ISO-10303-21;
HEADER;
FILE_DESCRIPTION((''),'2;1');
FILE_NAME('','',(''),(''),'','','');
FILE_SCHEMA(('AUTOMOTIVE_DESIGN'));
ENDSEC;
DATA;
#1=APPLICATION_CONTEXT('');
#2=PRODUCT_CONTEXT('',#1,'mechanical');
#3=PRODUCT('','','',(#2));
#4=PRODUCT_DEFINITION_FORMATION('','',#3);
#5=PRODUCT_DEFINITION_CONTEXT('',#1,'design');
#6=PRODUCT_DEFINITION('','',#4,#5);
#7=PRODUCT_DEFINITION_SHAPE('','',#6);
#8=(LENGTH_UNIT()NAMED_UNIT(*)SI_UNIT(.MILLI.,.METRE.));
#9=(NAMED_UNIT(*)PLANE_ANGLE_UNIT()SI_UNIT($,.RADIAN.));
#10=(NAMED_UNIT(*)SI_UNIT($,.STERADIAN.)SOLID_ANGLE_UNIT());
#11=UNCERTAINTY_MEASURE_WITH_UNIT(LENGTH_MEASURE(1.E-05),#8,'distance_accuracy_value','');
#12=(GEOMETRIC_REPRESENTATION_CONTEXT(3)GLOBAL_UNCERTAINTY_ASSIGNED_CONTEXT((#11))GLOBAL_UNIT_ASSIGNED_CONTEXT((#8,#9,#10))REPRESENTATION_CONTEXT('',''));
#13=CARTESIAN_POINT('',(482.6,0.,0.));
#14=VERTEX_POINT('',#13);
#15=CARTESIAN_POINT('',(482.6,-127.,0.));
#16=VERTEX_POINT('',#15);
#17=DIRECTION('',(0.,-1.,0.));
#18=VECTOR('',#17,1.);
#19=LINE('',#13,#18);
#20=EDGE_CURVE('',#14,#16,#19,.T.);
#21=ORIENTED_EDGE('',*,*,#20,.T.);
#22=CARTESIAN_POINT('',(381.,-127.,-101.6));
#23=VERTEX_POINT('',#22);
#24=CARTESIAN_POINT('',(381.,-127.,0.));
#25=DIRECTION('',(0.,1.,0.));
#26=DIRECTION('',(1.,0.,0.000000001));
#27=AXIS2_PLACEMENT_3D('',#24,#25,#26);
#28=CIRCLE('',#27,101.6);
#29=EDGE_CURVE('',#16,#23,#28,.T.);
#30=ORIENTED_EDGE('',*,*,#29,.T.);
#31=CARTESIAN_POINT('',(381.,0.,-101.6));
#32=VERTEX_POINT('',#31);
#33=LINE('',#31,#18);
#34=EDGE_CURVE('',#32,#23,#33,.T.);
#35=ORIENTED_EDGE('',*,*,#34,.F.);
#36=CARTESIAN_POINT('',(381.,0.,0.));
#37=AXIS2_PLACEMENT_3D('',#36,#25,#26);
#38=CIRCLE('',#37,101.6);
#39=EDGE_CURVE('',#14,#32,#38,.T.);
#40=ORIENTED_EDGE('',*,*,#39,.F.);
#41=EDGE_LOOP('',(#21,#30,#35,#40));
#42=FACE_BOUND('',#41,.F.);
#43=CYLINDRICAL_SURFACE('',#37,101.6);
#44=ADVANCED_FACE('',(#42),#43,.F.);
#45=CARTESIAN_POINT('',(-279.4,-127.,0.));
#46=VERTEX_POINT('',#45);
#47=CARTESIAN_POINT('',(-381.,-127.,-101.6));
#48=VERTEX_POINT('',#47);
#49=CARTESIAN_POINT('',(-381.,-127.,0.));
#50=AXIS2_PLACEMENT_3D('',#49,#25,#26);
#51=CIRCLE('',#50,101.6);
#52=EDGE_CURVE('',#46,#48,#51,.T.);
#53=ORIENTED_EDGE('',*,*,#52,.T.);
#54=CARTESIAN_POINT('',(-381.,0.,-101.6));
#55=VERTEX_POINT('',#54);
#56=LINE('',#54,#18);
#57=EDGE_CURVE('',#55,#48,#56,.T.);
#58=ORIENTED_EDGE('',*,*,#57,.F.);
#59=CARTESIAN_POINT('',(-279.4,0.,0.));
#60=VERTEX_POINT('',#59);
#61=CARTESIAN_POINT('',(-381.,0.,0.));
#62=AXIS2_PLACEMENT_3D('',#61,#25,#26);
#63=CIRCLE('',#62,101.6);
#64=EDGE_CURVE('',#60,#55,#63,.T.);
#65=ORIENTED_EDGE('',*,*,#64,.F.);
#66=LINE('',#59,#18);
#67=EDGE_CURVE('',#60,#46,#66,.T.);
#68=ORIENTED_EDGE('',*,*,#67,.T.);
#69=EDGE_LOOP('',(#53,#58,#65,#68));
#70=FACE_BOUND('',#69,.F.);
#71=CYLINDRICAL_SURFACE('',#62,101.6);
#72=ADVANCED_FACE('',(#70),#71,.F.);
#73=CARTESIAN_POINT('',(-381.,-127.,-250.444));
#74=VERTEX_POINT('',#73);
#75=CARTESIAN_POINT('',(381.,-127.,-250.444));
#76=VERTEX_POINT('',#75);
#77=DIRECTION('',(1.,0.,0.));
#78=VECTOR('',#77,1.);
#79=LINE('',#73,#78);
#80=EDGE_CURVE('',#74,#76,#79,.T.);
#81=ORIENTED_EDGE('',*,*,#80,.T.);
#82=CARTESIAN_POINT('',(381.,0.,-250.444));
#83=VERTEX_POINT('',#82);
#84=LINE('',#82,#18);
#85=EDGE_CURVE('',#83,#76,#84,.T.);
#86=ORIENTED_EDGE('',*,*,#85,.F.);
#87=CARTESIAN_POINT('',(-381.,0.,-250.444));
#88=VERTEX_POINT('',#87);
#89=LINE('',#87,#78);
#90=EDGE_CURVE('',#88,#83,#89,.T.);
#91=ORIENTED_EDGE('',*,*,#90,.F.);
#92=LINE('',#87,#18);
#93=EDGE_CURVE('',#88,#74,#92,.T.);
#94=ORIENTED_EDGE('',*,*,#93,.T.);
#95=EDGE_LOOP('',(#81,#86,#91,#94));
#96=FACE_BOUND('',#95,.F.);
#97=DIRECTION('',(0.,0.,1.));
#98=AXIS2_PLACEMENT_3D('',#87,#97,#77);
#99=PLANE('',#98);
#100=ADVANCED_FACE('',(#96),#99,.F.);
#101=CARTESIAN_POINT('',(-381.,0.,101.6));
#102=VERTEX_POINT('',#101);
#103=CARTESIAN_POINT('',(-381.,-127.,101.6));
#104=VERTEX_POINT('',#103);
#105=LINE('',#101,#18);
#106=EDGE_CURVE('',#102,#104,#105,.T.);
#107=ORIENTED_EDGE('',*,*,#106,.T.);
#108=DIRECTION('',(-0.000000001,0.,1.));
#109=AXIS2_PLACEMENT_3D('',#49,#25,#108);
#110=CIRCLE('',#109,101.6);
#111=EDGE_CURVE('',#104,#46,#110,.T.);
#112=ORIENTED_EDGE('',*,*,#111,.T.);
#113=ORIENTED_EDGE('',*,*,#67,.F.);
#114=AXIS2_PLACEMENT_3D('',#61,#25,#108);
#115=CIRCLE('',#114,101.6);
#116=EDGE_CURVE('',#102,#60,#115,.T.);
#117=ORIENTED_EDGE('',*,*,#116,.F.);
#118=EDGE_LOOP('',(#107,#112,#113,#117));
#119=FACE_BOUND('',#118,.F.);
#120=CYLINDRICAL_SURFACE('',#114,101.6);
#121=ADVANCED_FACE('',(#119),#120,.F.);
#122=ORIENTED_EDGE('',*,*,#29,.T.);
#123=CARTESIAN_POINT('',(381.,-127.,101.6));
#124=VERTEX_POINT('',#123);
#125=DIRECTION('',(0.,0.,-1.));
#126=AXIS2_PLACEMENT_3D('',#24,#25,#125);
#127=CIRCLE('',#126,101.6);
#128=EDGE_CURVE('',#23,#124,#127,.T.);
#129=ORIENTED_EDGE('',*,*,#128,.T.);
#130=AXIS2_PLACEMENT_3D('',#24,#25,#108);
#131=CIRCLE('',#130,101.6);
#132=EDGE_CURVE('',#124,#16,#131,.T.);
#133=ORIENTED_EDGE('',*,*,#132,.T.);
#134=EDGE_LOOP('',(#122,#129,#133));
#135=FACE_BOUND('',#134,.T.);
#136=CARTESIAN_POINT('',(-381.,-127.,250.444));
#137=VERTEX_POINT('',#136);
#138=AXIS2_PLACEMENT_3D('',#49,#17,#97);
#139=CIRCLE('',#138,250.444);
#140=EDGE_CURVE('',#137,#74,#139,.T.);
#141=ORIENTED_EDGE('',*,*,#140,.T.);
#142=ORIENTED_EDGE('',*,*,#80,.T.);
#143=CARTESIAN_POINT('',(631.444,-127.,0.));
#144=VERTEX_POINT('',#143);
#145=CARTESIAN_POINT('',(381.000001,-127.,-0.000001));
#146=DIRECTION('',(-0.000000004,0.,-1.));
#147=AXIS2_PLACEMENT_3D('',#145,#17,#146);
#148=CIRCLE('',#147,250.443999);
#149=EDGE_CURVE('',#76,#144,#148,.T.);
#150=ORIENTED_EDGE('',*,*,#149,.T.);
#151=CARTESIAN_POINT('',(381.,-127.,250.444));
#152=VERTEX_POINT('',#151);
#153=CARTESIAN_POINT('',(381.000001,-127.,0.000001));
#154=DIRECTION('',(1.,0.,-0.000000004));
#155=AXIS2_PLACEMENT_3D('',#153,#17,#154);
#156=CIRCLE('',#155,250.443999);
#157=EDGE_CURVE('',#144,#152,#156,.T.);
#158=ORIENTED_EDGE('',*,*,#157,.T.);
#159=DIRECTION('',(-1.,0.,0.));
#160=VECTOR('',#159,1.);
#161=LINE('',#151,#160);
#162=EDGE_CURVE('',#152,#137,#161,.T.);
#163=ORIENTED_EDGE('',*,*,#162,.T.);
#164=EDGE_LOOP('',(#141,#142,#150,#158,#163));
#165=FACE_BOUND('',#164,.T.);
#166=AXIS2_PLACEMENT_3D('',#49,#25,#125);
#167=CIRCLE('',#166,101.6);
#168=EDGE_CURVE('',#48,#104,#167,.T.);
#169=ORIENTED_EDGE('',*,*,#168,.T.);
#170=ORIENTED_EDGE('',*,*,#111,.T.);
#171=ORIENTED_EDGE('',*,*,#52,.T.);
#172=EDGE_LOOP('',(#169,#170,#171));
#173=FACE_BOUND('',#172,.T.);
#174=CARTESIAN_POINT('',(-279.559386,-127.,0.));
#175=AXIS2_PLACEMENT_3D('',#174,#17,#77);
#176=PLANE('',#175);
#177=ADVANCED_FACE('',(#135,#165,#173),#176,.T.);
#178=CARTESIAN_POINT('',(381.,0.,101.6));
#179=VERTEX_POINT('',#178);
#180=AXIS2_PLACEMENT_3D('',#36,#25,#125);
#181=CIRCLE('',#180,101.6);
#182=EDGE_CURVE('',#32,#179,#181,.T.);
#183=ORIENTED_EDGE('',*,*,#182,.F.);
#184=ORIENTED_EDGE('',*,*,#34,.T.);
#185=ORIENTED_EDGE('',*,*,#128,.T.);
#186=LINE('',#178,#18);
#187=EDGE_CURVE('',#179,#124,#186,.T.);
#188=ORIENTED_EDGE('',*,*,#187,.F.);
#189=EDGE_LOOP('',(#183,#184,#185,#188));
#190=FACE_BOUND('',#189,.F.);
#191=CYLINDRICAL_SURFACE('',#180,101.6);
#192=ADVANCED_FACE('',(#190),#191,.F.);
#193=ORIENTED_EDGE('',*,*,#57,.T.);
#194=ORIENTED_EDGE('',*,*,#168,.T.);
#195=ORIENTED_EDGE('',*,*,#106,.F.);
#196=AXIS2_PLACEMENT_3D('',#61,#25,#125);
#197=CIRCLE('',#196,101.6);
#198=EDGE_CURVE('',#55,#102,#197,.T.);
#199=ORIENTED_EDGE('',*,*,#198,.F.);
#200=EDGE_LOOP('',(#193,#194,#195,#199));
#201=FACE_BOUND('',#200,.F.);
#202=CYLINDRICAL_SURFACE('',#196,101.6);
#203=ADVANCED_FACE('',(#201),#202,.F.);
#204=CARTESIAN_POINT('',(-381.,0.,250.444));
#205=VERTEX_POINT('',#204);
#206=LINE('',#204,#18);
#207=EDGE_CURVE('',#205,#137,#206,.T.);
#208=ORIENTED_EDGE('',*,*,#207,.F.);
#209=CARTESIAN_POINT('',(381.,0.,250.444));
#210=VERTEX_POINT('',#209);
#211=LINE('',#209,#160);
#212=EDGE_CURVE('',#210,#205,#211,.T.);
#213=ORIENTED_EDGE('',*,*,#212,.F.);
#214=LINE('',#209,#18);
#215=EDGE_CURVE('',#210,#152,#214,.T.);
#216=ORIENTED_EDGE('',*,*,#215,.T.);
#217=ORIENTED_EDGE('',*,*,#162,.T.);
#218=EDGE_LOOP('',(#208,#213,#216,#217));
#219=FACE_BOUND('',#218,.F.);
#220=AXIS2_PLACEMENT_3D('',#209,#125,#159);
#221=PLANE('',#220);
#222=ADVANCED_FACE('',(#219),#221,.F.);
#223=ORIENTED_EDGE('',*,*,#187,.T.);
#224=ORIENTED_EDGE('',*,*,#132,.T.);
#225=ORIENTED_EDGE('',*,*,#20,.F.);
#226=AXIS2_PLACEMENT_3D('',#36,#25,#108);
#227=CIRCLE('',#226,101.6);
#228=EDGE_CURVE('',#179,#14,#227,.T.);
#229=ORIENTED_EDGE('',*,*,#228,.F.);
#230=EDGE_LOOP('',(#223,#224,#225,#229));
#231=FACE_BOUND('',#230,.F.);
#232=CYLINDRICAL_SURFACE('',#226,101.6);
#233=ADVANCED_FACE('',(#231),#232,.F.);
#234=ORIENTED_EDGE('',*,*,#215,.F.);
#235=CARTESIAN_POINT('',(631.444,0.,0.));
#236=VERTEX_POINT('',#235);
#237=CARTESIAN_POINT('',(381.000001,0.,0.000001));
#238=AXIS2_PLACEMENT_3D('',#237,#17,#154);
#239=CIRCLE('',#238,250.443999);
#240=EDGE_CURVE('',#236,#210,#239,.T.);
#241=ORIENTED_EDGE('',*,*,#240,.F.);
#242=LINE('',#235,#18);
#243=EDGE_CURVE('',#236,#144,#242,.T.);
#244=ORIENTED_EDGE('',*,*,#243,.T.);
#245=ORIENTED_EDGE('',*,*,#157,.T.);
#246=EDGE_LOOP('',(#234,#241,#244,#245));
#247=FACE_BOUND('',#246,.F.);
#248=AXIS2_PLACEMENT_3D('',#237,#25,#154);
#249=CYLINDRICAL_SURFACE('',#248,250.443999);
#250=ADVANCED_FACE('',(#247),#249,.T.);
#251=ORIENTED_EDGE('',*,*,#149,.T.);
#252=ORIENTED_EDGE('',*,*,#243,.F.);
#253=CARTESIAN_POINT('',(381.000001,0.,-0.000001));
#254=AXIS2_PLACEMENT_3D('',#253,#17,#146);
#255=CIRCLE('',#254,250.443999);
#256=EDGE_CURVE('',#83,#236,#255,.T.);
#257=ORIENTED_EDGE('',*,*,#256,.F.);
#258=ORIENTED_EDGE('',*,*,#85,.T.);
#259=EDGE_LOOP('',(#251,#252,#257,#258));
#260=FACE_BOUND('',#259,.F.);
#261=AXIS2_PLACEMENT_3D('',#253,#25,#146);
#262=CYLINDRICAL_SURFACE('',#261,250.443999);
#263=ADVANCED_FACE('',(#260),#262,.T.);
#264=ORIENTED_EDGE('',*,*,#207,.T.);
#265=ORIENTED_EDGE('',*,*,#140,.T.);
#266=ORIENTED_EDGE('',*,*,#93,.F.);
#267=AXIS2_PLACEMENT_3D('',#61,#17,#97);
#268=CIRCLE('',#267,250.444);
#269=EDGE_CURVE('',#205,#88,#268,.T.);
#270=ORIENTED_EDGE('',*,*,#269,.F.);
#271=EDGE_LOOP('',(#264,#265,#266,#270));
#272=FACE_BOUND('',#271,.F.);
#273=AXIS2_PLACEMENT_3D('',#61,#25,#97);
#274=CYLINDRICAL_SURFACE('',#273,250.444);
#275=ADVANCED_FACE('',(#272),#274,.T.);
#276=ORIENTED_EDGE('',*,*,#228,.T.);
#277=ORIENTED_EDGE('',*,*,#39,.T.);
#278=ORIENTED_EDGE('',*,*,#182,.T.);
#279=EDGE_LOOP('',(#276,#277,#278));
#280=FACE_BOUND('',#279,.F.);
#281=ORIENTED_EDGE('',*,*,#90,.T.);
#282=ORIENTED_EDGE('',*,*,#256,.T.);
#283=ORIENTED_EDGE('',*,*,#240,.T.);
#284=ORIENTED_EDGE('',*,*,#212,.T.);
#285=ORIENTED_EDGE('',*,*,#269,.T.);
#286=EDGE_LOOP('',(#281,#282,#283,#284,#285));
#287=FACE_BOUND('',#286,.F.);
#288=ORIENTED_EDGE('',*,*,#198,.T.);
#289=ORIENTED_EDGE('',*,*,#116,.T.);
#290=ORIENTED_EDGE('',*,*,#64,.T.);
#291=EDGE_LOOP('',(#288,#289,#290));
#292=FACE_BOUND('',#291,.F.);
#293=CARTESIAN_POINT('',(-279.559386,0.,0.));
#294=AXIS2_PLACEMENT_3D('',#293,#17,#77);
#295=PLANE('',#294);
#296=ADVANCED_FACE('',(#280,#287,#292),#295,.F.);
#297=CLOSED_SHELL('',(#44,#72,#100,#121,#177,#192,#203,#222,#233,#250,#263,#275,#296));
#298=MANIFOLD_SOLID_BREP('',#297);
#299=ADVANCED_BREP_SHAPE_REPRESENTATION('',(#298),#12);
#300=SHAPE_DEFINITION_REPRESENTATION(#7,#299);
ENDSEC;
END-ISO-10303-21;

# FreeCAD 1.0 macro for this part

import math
import FreeCAD as App
import Part
import Sketcher
Q = App.Units.Quantity

doc = App.newDocument("Part")
params = doc.addObject("Spreadsheet::Sheet", "Params")
for row, (alias, value) in enumerate([
    ("sketch1_radius", "4 in"),
    ("sketch1_width", "30 in"),
    ("sketch1_radius2", "9.86 in"),
    ("pad1_length", "5 in"),
], start=1):
    params.set(f"A{row}", alias)
    params.set(f"B{row}", "=" + value)
    params.setAlias(f"B{row}", alias)

body = doc.addObject("PartDesign::Body", "Body")

# Sketch on XZ plane
sketch1 = body.newObject("Sketcher::SketchObject", "Sketch")
sketch1.AttachmentSupport = (doc.getObject("XZ_Plane"), [""])
sketch1.MapMode = "FlatFace"
sketch1.addGeometry([
    Part.ArcOfCircle(Part.Circle(App.Vector(-381, 0, 0), App.Vector(0, 0, 1), 250), math.radians(90), math.radians(270)),  # 0
    Part.LineSegment(App.Vector(-381, -250, 0), App.Vector(381, -250, 0)),  # 1
    Part.ArcOfCircle(Part.Circle(App.Vector(381, 0, 0), App.Vector(0, 0, 1), 250), math.radians(-90), math.radians(0)),  # 2
    Part.ArcOfCircle(Part.Circle(App.Vector(381, 0, 0), App.Vector(0, 0, 1), 250), math.radians(0), math.radians(90)),  # 3
    Part.LineSegment(App.Vector(381, 250, 0), App.Vector(-381, 250, 0)),  # 4
    Part.ArcOfCircle(Part.Circle(App.Vector(-381, 0, 0), App.Vector(0, 0, 1), 102), math.radians(0), math.radians(90)),  # 5
    Part.ArcOfCircle(Part.Circle(App.Vector(-381, 0, 0), App.Vector(0, 0, 1), 102), math.radians(-90), math.radians(0)),  # 6
    Part.ArcOfCircle(Part.Circle(App.Vector(-381, 0, 0), App.Vector(0, 0, 1), 102), math.radians(90), math.radians(270)),  # 7
    Part.ArcOfCircle(Part.Circle(App.Vector(381, 0, 0), App.Vector(0, 0, 1), 102), math.radians(90), math.radians(270)),  # 8
    Part.ArcOfCircle(Part.Circle(App.Vector(381, 0, 0), App.Vector(0, 0, 1), 102), math.radians(0), math.radians(90)),  # 9
    Part.ArcOfCircle(Part.Circle(App.Vector(381, 0, 0), App.Vector(0, 0, 1), 102), math.radians(-90), math.radians(0)),  # 10
], False)
sketch1.addConstraint([
    Sketcher.Constraint("Tangent", 0, 2, 1, 1),
    Sketcher.Constraint("Tangent", 1, 2, 2, 1),
    Sketcher.Constraint("Tangent", 2, 2, 3, 1),
    Sketcher.Constraint("Tangent", 3, 2, 4, 1),
    Sketcher.Constraint("Tangent", 4, 2, 0, 1),
    Sketcher.Constraint("Tangent", 5, 1, 6, 2),
    Sketcher.Constraint("Tangent", 6, 1, 7, 2),
    Sketcher.Constraint("Tangent", 7, 1, 5, 2),
    Sketcher.Constraint("Tangent", 8, 1, 9, 2),
    Sketcher.Constraint("Tangent", 9, 1, 10, 2),
    Sketcher.Constraint("Tangent", 10, 1, 8, 2),
    Sketcher.Constraint("Horizontal", 1),
    Sketcher.Constraint("Horizontal", 4),
    Sketcher.Constraint("Coincident", 5, 3, 0, 3),
    Sketcher.Constraint("Coincident", 8, 3, 2, 3),
    Sketcher.Constraint("Equal", 0, 2),
    Sketcher.Constraint("Equal", 7, 8),
    Sketcher.Constraint("Symmetric", 0, 3, 2, 3, -1, 1),
    Sketcher.Constraint("PointOnObject", 2, 2, -1),
    Sketcher.Constraint("PointOnObject", 5, 1, -1),
    Sketcher.Constraint("PointOnObject", 9, 1, -1),
    Sketcher.Constraint("Vertical", 4, 2, 6, 1),
    Sketcher.Constraint("Vertical", 6, 1, 7, 1),
    Sketcher.Constraint("Vertical", 3, 2, 8, 1),
    Sketcher.Constraint("Vertical", 8, 1, 10, 1),
    Sketcher.Constraint("Radius", 5, Q("4 in")),
    Sketcher.Constraint("DistanceX", 1, 1, 1, 2, Q("30 in")),
    Sketcher.Constraint("Radius", 0, Q("9.86 in")),
])
sketch1.setExpression("Constraints[25]", "Params.sketch1_radius")
sketch1.setExpression("Constraints[26]", "Params.sketch1_width")
sketch1.setExpression("Constraints[27]", "Params.sketch1_radius2")
pad1 = body.newObject("PartDesign::Pad", "Pad")
pad1.Profile = sketch1
pad1.setExpression("Length", "Params.pad1_length")

doc.recompute()
